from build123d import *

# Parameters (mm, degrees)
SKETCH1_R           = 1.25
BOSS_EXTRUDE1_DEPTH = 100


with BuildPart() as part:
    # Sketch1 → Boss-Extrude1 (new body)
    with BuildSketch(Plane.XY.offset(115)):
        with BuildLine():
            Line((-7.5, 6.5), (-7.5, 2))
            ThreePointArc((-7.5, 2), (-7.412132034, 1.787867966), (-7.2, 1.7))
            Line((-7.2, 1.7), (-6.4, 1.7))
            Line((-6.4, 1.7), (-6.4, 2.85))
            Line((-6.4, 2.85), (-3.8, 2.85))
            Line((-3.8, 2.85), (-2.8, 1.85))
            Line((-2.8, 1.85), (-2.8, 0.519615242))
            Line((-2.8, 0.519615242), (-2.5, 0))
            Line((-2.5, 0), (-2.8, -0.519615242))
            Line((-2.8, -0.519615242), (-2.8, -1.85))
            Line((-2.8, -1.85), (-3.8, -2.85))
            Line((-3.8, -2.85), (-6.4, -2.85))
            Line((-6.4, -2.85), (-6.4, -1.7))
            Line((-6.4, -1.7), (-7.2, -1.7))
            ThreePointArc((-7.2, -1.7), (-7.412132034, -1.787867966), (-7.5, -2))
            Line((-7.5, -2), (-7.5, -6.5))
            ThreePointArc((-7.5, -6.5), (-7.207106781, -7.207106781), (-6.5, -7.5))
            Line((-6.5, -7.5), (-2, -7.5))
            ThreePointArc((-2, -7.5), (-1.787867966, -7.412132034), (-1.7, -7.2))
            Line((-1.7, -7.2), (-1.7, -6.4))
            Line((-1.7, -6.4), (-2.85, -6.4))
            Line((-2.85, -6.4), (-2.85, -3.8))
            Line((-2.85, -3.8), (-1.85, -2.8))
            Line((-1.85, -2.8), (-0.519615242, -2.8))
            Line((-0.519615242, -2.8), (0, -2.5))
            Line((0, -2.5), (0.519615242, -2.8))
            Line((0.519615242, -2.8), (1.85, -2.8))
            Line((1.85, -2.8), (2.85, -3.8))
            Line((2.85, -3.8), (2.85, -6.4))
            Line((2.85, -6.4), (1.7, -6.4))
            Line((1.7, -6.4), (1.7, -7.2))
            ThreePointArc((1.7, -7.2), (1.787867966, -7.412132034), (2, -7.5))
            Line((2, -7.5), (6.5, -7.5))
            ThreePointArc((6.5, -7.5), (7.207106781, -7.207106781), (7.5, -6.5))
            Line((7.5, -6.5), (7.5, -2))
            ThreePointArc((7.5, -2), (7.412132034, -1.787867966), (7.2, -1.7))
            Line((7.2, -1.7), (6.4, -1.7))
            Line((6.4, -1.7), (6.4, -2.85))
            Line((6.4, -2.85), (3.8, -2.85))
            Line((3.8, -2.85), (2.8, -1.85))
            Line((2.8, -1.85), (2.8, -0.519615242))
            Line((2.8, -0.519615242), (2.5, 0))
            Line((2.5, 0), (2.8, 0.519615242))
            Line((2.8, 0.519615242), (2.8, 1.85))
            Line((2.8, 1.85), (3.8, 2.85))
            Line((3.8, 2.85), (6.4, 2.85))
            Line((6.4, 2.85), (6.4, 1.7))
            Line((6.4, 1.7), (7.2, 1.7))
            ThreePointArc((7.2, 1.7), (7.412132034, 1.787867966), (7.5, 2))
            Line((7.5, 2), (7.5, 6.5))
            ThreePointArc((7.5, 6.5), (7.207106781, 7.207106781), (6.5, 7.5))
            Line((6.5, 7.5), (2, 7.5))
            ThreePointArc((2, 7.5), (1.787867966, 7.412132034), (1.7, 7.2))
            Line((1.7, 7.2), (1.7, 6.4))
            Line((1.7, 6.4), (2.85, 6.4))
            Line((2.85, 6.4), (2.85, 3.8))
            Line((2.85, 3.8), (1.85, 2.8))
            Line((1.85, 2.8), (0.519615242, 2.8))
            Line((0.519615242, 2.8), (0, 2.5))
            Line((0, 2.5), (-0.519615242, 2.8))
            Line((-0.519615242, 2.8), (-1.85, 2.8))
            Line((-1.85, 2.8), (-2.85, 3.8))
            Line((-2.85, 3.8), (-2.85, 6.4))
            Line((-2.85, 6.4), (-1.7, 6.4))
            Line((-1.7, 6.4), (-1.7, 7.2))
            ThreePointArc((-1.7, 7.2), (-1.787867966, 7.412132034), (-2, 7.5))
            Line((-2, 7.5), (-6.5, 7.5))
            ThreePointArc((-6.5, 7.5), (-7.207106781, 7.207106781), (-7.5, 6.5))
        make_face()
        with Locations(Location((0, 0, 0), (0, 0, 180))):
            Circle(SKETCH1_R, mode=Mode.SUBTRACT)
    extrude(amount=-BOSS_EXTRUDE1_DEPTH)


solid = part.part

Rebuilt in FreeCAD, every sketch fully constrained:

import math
import FreeCAD as App
import Part
import Sketcher
from FreeCAD import Vector
Q = App.Units.Quantity

doc = App.newDocument("Part")
body = doc.addObject("PartDesign::Body", "Body")

# Sketch on XY plane
sketch1 = body.newObject("Sketcher::SketchObject", "Sketch")
sketch1.AttachmentSupport = (doc.getObject("XY_Plane"), [""])
sketch1.MapMode = "FlatFace"
sketch1.AttachmentOffset = App.Placement(Vector(0, 0, 115), App.Rotation())
sketch1.addGeometry(Part.LineSegment(Vector(-7.5, 6.5, 0), Vector(-7.5, 2, 0)), False)
sketch1.addGeometry(Part.ArcOfCircle(Part.Circle(Vector(-7.2, 2, 0), Vector(0, 0, 1), 0.3), math.radians(-180), math.radians(-90)), False)
sketch1.addGeometry(Part.LineSegment(Vector(-7.2, 1.7, 0), Vector(-6.4, 1.7, 0)), False)
sketch1.addGeometry(Part.LineSegment(Vector(-6.4, 1.7, 0), Vector(-6.4, 2.85, 0)), False)
sketch1.addGeometry(Part.LineSegment(Vector(-6.4, 2.85, 0), Vector(-3.8, 2.85, 0)), False)
sketch1.addGeometry(Part.LineSegment(Vector(-3.8, 2.85, 0), Vector(-2.8, 1.85, 0)), False)
sketch1.addGeometry(Part.LineSegment(Vector(-2.8, 1.85, 0), Vector(-2.8, 0.52, 0)), False)
sketch1.addGeometry(Part.LineSegment(Vector(-2.8, 0.52, 0), Vector(-2.5, 0, 0)), False)
sketch1.addGeometry(Part.LineSegment(Vector(-2.5, 0, 0), Vector(-2.8, -0.52, 0)), False)
sketch1.addGeometry(Part.LineSegment(Vector(-2.8, -0.52, 0), Vector(-2.8, -1.85, 0)), False)
sketch1.addGeometry(Part.LineSegment(Vector(-2.8, -1.85, 0), Vector(-3.8, -2.85, 0)), False)
sketch1.addGeometry(Part.LineSegment(Vector(-3.8, -2.85, 0), Vector(-6.4, -2.85, 0)), False)
sketch1.addGeometry(Part.LineSegment(Vector(-6.4, -2.85, 0), Vector(-6.4, -1.7, 0)), False)
sketch1.addGeometry(Part.LineSegment(Vector(-6.4, -1.7, 0), Vector(-7.2, -1.7, 0)), False)
sketch1.addGeometry(Part.ArcOfCircle(Part.Circle(Vector(-7.2, -2, 0), Vector(0, 0, 1), 0.3), math.radians(90), math.radians(180)), False)
sketch1.addGeometry(Part.LineSegment(Vector(-7.5, -2, 0), Vector(-7.5, -6.5, 0)), False)
sketch1.addGeometry(Part.ArcOfCircle(Part.Circle(Vector(-6.5, -6.5, 0), Vector(0, 0, 1), 1), math.radians(-180), math.radians(-90)), False)
sketch1.addGeometry(Part.LineSegment(Vector(-6.5, -7.5, 0), Vector(-2, -7.5, 0)), False)
sketch1.addGeometry(Part.ArcOfCircle(Part.Circle(Vector(-2, -7.2, 0), Vector(0, 0, 1), 0.3), math.radians(-90), math.radians(0)), False)
sketch1.addGeometry(Part.LineSegment(Vector(-1.7, -7.2, 0), Vector(-1.7, -6.4, 0)), False)
sketch1.addGeometry(Part.LineSegment(Vector(-1.7, -6.4, 0), Vector(-2.85, -6.4, 0)), False)
sketch1.addGeometry(Part.LineSegment(Vector(-2.85, -6.4, 0), Vector(-2.85, -3.8, 0)), False)
sketch1.addGeometry(Part.LineSegment(Vector(-2.85, -3.8, 0), Vector(-1.85, -2.8, 0)), False)
sketch1.addGeometry(Part.LineSegment(Vector(-1.85, -2.8, 0), Vector(-0.52, -2.8, 0)), False)
sketch1.addGeometry(Part.LineSegment(Vector(-0.52, -2.8, 0), Vector(0, -2.5, 0)), False)
sketch1.addGeometry(Part.LineSegment(Vector(0, -2.5, 0), Vector(0.52, -2.8, 0)), False)
sketch1.addGeometry(Part.LineSegment(Vector(0.52, -2.8, 0), Vector(1.85, -2.8, 0)), False)
sketch1.addGeometry(Part.LineSegment(Vector(1.85, -2.8, 0), Vector(2.85, -3.8, 0)), False)
sketch1.addGeometry(Part.LineSegment(Vector(2.85, -3.8, 0), Vector(2.85, -6.4, 0)), False)
sketch1.addGeometry(Part.LineSegment(Vector(2.85, -6.4, 0), Vector(1.7, -6.4, 0)), False)
sketch1.addGeometry(Part.LineSegment(Vector(1.7, -6.4, 0), Vector(1.7, -7.2, 0)), False)
sketch1.addGeometry(Part.ArcOfCircle(Part.Circle(Vector(2, -7.2, 0), Vector(0, 0, 1), 0.3), math.radians(-180), math.radians(-90)), False)
sketch1.addGeometry(Part.LineSegment(Vector(2, -7.5, 0), Vector(6.5, -7.5, 0)), False)
sketch1.addGeometry(Part.ArcOfCircle(Part.Circle(Vector(6.5, -6.5, 0), Vector(0, 0, 1), 1), math.radians(-90), math.radians(0)), False)
sketch1.addGeometry(Part.LineSegment(Vector(7.5, -6.5, 0), Vector(7.5, -2, 0)), False)
sketch1.addGeometry(Part.ArcOfCircle(Part.Circle(Vector(7.2, -2, 0), Vector(0, 0, 1), 0.3), math.radians(0), math.radians(90)), False)
sketch1.addGeometry(Part.LineSegment(Vector(7.2, -1.7, 0), Vector(6.4, -1.7, 0)), False)
sketch1.addGeometry(Part.LineSegment(Vector(6.4, -1.7, 0), Vector(6.4, -2.85, 0)), False)
sketch1.addGeometry(Part.LineSegment(Vector(6.4, -2.85, 0), Vector(3.8, -2.85, 0)), False)
sketch1.addGeometry(Part.LineSegment(Vector(3.8, -2.85, 0), Vector(2.8, -1.85, 0)), False)
sketch1.addGeometry(Part.LineSegment(Vector(2.8, -1.85, 0), Vector(2.8, -0.52, 0)), False)
sketch1.addGeometry(Part.LineSegment(Vector(2.8, -0.52, 0), Vector(2.5, 0, 0)), False)
sketch1.addGeometry(Part.LineSegment(Vector(2.5, 0, 0), Vector(2.8, 0.52, 0)), False)
sketch1.addGeometry(Part.LineSegment(Vector(2.8, 0.52, 0), Vector(2.8, 1.85, 0)), False)
sketch1.addGeometry(Part.LineSegment(Vector(2.8, 1.85, 0), Vector(3.8, 2.85, 0)), False)
sketch1.addGeometry(Part.LineSegment(Vector(3.8, 2.85, 0), Vector(6.4, 2.85, 0)), False)
sketch1.addGeometry(Part.LineSegment(Vector(6.4, 2.85, 0), Vector(6.4, 1.7, 0)), False)
sketch1.addGeometry(Part.LineSegment(Vector(6.4, 1.7, 0), Vector(7.2, 1.7, 0)), False)
sketch1.addGeometry(Part.ArcOfCircle(Part.Circle(Vector(7.2, 2, 0), Vector(0, 0, 1), 0.3), math.radians(-90), math.radians(0)), False)
sketch1.addGeometry(Part.LineSegment(Vector(7.5, 2, 0), Vector(7.5, 6.5, 0)), False)
sketch1.addGeometry(Part.ArcOfCircle(Part.Circle(Vector(6.5, 6.5, 0), Vector(0, 0, 1), 1), math.radians(0), math.radians(90)), False)
sketch1.addGeometry(Part.LineSegment(Vector(6.5, 7.5, 0), Vector(2, 7.5, 0)), False)
sketch1.addGeometry(Part.ArcOfCircle(Part.Circle(Vector(2, 7.2, 0), Vector(0, 0, 1), 0.3), math.radians(90), math.radians(180)), False)
sketch1.addGeometry(Part.LineSegment(Vector(1.7, 7.2, 0), Vector(1.7, 6.4, 0)), False)
sketch1.addGeometry(Part.LineSegment(Vector(1.7, 6.4, 0), Vector(2.85, 6.4, 0)), False)
sketch1.addGeometry(Part.LineSegment(Vector(2.85, 6.4, 0), Vector(2.85, 3.8, 0)), False)
sketch1.addGeometry(Part.LineSegment(Vector(2.85, 3.8, 0), Vector(1.85, 2.8, 0)), False)
sketch1.addGeometry(Part.LineSegment(Vector(1.85, 2.8, 0), Vector(0.52, 2.8, 0)), False)
sketch1.addGeometry(Part.LineSegment(Vector(0.52, 2.8, 0), Vector(0, 2.5, 0)), False)
sketch1.addGeometry(Part.LineSegment(Vector(0, 2.5, 0), Vector(-0.52, 2.8, 0)), False)
sketch1.addGeometry(Part.LineSegment(Vector(-0.52, 2.8, 0), Vector(-1.85, 2.8, 0)), False)
sketch1.addGeometry(Part.LineSegment(Vector(-1.85, 2.8, 0), Vector(-2.85, 3.8, 0)), False)
sketch1.addGeometry(Part.LineSegment(Vector(-2.85, 3.8, 0), Vector(-2.85, 6.4, 0)), False)
sketch1.addGeometry(Part.LineSegment(Vector(-2.85, 6.4, 0), Vector(-1.7, 6.4, 0)), False)
sketch1.addGeometry(Part.LineSegment(Vector(-1.7, 6.4, 0), Vector(-1.7, 7.2, 0)), False)
sketch1.addGeometry(Part.ArcOfCircle(Part.Circle(Vector(-2, 7.2, 0), Vector(0, 0, 1), 0.3), math.radians(0), math.radians(90)), False)
sketch1.addGeometry(Part.LineSegment(Vector(-2, 7.5, 0), Vector(-6.5, 7.5, 0)), False)
sketch1.addGeometry(Part.ArcOfCircle(Part.Circle(Vector(-6.5, 6.5, 0), Vector(0, 0, 1), 1), math.radians(90), math.radians(180)), False)
sketch1.addGeometry(Part.Circle(Vector(0, 0, 0), Vector(0, 0, 1), 1.25), False)
sketch1.addConstraint(Sketcher.Constraint("Tangent", 0, 2, 1, 1))
sketch1.addConstraint(Sketcher.Constraint("Tangent", 1, 2, 2, 1))
sketch1.addConstraint(Sketcher.Constraint("Coincident", 2, 2, 3, 1))
sketch1.addConstraint(Sketcher.Constraint("Coincident", 3, 2, 4, 1))
sketch1.addConstraint(Sketcher.Constraint("Coincident", 4, 2, 5, 1))
sketch1.addConstraint(Sketcher.Constraint("Coincident", 5, 2, 6, 1))
sketch1.addConstraint(Sketcher.Constraint("Coincident", 6, 2, 7, 1))
sketch1.addConstraint(Sketcher.Constraint("Coincident", 7, 2, 8, 1))
sketch1.addConstraint(Sketcher.Constraint("Coincident", 8, 2, 9, 1))
sketch1.addConstraint(Sketcher.Constraint("Coincident", 9, 2, 10, 1))
sketch1.addConstraint(Sketcher.Constraint("Coincident", 10, 2, 11, 1))
sketch1.addConstraint(Sketcher.Constraint("Coincident", 11, 2, 12, 1))
sketch1.addConstraint(Sketcher.Constraint("Coincident", 12, 2, 13, 1))
sketch1.addConstraint(Sketcher.Constraint("Tangent", 13, 2, 14, 1))
sketch1.addConstraint(Sketcher.Constraint("Tangent", 14, 2, 15, 1))
sketch1.addConstraint(Sketcher.Constraint("Tangent", 15, 2, 16, 1))
sketch1.addConstraint(Sketcher.Constraint("Tangent", 16, 2, 17, 1))
sketch1.addConstraint(Sketcher.Constraint("Tangent", 17, 2, 18, 1))
sketch1.addConstraint(Sketcher.Constraint("Tangent", 18, 2, 19, 1))
sketch1.addConstraint(Sketcher.Constraint("Coincident", 19, 2, 20, 1))
sketch1.addConstraint(Sketcher.Constraint("Coincident", 20, 2, 21, 1))
sketch1.addConstraint(Sketcher.Constraint("Coincident", 21, 2, 22, 1))
sketch1.addConstraint(Sketcher.Constraint("Coincident", 22, 2, 23, 1))
sketch1.addConstraint(Sketcher.Constraint("Coincident", 23, 2, 24, 1))
sketch1.addConstraint(Sketcher.Constraint("Coincident", 24, 2, 25, 1))
sketch1.addConstraint(Sketcher.Constraint("Coincident", 25, 2, 26, 1))
sketch1.addConstraint(Sketcher.Constraint("Coincident", 26, 2, 27, 1))
sketch1.addConstraint(Sketcher.Constraint("Coincident", 27, 2, 28, 1))
sketch1.addConstraint(Sketcher.Constraint("Coincident", 28, 2, 29, 1))
sketch1.addConstraint(Sketcher.Constraint("Coincident", 29, 2, 30, 1))
sketch1.addConstraint(Sketcher.Constraint("Tangent", 30, 2, 31, 1))
sketch1.addConstraint(Sketcher.Constraint("Tangent", 31, 2, 32, 1))
sketch1.addConstraint(Sketcher.Constraint("Tangent", 32, 2, 33, 1))
sketch1.addConstraint(Sketcher.Constraint("Tangent", 33, 2, 34, 1))
sketch1.addConstraint(Sketcher.Constraint("Tangent", 34, 2, 35, 1))
sketch1.addConstraint(Sketcher.Constraint("Tangent", 35, 2, 36, 1))
sketch1.addConstraint(Sketcher.Constraint("Coincident", 36, 2, 37, 1))
sketch1.addConstraint(Sketcher.Constraint("Coincident", 37, 2, 38, 1))
sketch1.addConstraint(Sketcher.Constraint("Coincident", 38, 2, 39, 1))
sketch1.addConstraint(Sketcher.Constraint("Coincident", 39, 2, 40, 1))
sketch1.addConstraint(Sketcher.Constraint("Coincident", 40, 2, 41, 1))
sketch1.addConstraint(Sketcher.Constraint("Coincident", 41, 2, 42, 1))
sketch1.addConstraint(Sketcher.Constraint("Coincident", 42, 2, 43, 1))
sketch1.addConstraint(Sketcher.Constraint("Coincident", 43, 2, 44, 1))
sketch1.addConstraint(Sketcher.Constraint("Coincident", 44, 2, 45, 1))
sketch1.addConstraint(Sketcher.Constraint("Coincident", 45, 2, 46, 1))
sketch1.addConstraint(Sketcher.Constraint("Coincident", 46, 2, 47, 1))
sketch1.addConstraint(Sketcher.Constraint("Tangent", 47, 2, 48, 1))
sketch1.addConstraint(Sketcher.Constraint("Tangent", 48, 2, 49, 1))
sketch1.addConstraint(Sketcher.Constraint("Tangent", 49, 2, 50, 1))
sketch1.addConstraint(Sketcher.Constraint("Tangent", 50, 2, 51, 1))
sketch1.addConstraint(Sketcher.Constraint("Tangent", 51, 2, 52, 1))
sketch1.addConstraint(Sketcher.Constraint("Tangent", 52, 2, 53, 1))
sketch1.addConstraint(Sketcher.Constraint("Coincident", 53, 2, 54, 1))
sketch1.addConstraint(Sketcher.Constraint("Coincident", 54, 2, 55, 1))
sketch1.addConstraint(Sketcher.Constraint("Coincident", 55, 2, 56, 1))
sketch1.addConstraint(Sketcher.Constraint("Coincident", 56, 2, 57, 1))
sketch1.addConstraint(Sketcher.Constraint("Coincident", 57, 2, 58, 1))
sketch1.addConstraint(Sketcher.Constraint("Coincident", 58, 2, 59, 1))
sketch1.addConstraint(Sketcher.Constraint("Coincident", 59, 2, 60, 1))
sketch1.addConstraint(Sketcher.Constraint("Coincident", 60, 2, 61, 1))
sketch1.addConstraint(Sketcher.Constraint("Coincident", 61, 2, 62, 1))
sketch1.addConstraint(Sketcher.Constraint("Coincident", 62, 2, 63, 1))
sketch1.addConstraint(Sketcher.Constraint("Coincident", 63, 2, 64, 1))
sketch1.addConstraint(Sketcher.Constraint("Tangent", 64, 2, 65, 1))
sketch1.addConstraint(Sketcher.Constraint("Tangent", 65, 2, 66, 1))
sketch1.addConstraint(Sketcher.Constraint("Tangent", 66, 2, 67, 1))
sketch1.addConstraint(Sketcher.Constraint("Tangent", 67, 2, 0, 1))
sketch1.addConstraint(Sketcher.Constraint("Vertical", 0))
sketch1.addConstraint(Sketcher.Constraint("Horizontal", 2))
sketch1.addConstraint(Sketcher.Constraint("Vertical", 3))
sketch1.addConstraint(Sketcher.Constraint("Horizontal", 4))
sketch1.addConstraint(Sketcher.Constraint("Vertical", 6))
sketch1.addConstraint(Sketcher.Constraint("Vertical", 9))
sketch1.addConstraint(Sketcher.Constraint("Horizontal", 11))
sketch1.addConstraint(Sketcher.Constraint("Vertical", 12))
sketch1.addConstraint(Sketcher.Constraint("Horizontal", 13))
sketch1.addConstraint(Sketcher.Constraint("Vertical", 15))
sketch1.addConstraint(Sketcher.Constraint("Horizontal", 17))
sketch1.addConstraint(Sketcher.Constraint("Vertical", 19))
sketch1.addConstraint(Sketcher.Constraint("Horizontal", 20))
sketch1.addConstraint(Sketcher.Constraint("Vertical", 21))
sketch1.addConstraint(Sketcher.Constraint("Horizontal", 23))
sketch1.addConstraint(Sketcher.Constraint("Horizontal", 26))
sketch1.addConstraint(Sketcher.Constraint("Vertical", 28))
sketch1.addConstraint(Sketcher.Constraint("Horizontal", 29))
sketch1.addConstraint(Sketcher.Constraint("Vertical", 30))
sketch1.addConstraint(Sketcher.Constraint("Horizontal", 32))
sketch1.addConstraint(Sketcher.Constraint("Vertical", 34))
sketch1.addConstraint(Sketcher.Constraint("Horizontal", 36))
sketch1.addConstraint(Sketcher.Constraint("Vertical", 37))
sketch1.addConstraint(Sketcher.Constraint("Horizontal", 38))
sketch1.addConstraint(Sketcher.Constraint("Vertical", 40))
sketch1.addConstraint(Sketcher.Constraint("Vertical", 43))
sketch1.addConstraint(Sketcher.Constraint("Horizontal", 45))
sketch1.addConstraint(Sketcher.Constraint("Vertical", 46))
sketch1.addConstraint(Sketcher.Constraint("Horizontal", 47))
sketch1.addConstraint(Sketcher.Constraint("Vertical", 49))
sketch1.addConstraint(Sketcher.Constraint("Horizontal", 51))
sketch1.addConstraint(Sketcher.Constraint("Vertical", 53))
sketch1.addConstraint(Sketcher.Constraint("Horizontal", 54))
sketch1.addConstraint(Sketcher.Constraint("Vertical", 55))
sketch1.addConstraint(Sketcher.Constraint("Horizontal", 57))
sketch1.addConstraint(Sketcher.Constraint("Horizontal", 60))
sketch1.addConstraint(Sketcher.Constraint("Vertical", 62))
sketch1.addConstraint(Sketcher.Constraint("Horizontal", 63))
sketch1.addConstraint(Sketcher.Constraint("Vertical", 64))
sketch1.addConstraint(Sketcher.Constraint("Horizontal", 66))
sketch1.addConstraint(Sketcher.Constraint("Coincident", 68, 3, -1, 1))
sketch1.addConstraint(Sketcher.Constraint("Equal", 1, 14))
sketch1.addConstraint(Sketcher.Constraint("Equal", 14, 18))
sketch1.addConstraint(Sketcher.Constraint("Equal", 18, 31))
sketch1.addConstraint(Sketcher.Constraint("Equal", 16, 33))
sketch1.addConstraint(Sketcher.Constraint("Equal", 31, 35))
sketch1.addConstraint(Sketcher.Constraint("Equal", 35, 48))
sketch1.addConstraint(Sketcher.Constraint("Equal", 33, 50))
sketch1.addConstraint(Sketcher.Constraint("Equal", 48, 52))
sketch1.addConstraint(Sketcher.Constraint("Equal", 52, 65))
sketch1.addConstraint(Sketcher.Constraint("Equal", 50, 67))
sketch1.addConstraint(Sketcher.Constraint("Symmetric", 1, 3, 35, 3, -1, 1))
sketch1.addConstraint(Sketcher.Constraint("Symmetric", 14, 3, 48, 3, -1, 1))
sketch1.addConstraint(Sketcher.Constraint("Symmetric", 18, 3, 52, 3, -1, 1))
sketch1.addConstraint(Sketcher.Constraint("Symmetric", 31, 3, 65, 3, -1, 1))
sketch1.addConstraint(Sketcher.Constraint("Symmetric", 3, 2, 37, 2, -1, 1))
sketch1.addConstraint(Sketcher.Constraint("Symmetric", 5, 2, 39, 2, -1, 1))
sketch1.addConstraint(Sketcher.Constraint("Symmetric", 7, 2, 41, 2, -1, 1))
sketch1.addConstraint(Sketcher.Constraint("Symmetric", 8, 2, 42, 2, -1, 1))
sketch1.addConstraint(Sketcher.Constraint("Symmetric", 10, 2, 44, 2, -1, 1))
sketch1.addConstraint(Sketcher.Constraint("Symmetric", 20, 2, 54, 2, -1, 1))
sketch1.addConstraint(Sketcher.Constraint("Symmetric", 22, 2, 56, 2, -1, 1))
sketch1.addConstraint(Sketcher.Constraint("Symmetric", 24, 2, 58, 2, -1, 1))
sketch1.addConstraint(Sketcher.Constraint("Symmetric", 25, 2, 59, 2, -1, 1))
sketch1.addConstraint(Sketcher.Constraint("Symmetric", 27, 2, 61, 2, -1, 1))
sketch1.addConstraint(Sketcher.Constraint("Symmetric", 18, 3, 31, 3, -2))
sketch1.addConstraint(Sketcher.Constraint("Symmetric", 14, 3, 35, 3, -2))
sketch1.addConstraint(Sketcher.Constraint("Symmetric", 23, 2, 25, 2, -2))
sketch1.addConstraint(Sketcher.Constraint("Symmetric", 21, 2, 27, 2, -2))
sketch1.addConstraint(Sketcher.Constraint("Symmetric", 11, 2, 37, 2, -2))
sketch1.addConstraint(Sketcher.Constraint("Symmetric", 9, 2, 39, 2, -2))
sketch1.addConstraint(Sketcher.Constraint("PointOnObject", 7, 2, -1))
sketch1.addConstraint(Sketcher.Constraint("PointOnObject", 24, 2, -2))
sketch1.addConstraint(Sketcher.Constraint("Perpendicular", 5, 10))
sketch1.addConstraint(Sketcher.Constraint("Parallel", 10, 22))
sketch1.addConstraint(Sketcher.Constraint("Perpendicular", 7, 24))
sketch1.addConstraint(Sketcher.Constraint("Perpendicular", 8, 25))
sketch1.addConstraint(Sketcher.Constraint("Perpendicular", 22, 27))
sketch1.addConstraint(Sketcher.Constraint("Parallel", 27, 39))
sketch1.addConstraint(Sketcher.Constraint("Perpendicular", 24, 41))
sketch1.addConstraint(Sketcher.Constraint("Perpendicular", 39, 44))
sketch1.addConstraint(Sketcher.Constraint("Parallel", 44, 56))
sketch1.addConstraint(Sketcher.Constraint("Perpendicular", 41, 58))
sketch1.addConstraint(Sketcher.Constraint("Perpendicular", 56, 61))
sketch1.addConstraint(Sketcher.Constraint("Horizontal", 20, 2, 28, 2))
sketch1.addConstraint(Sketcher.Constraint("Horizontal", 54, 2, 62, 2))
sketch1.addConstraint(Sketcher.Constraint("Vertical", 4, 2, 10, 2))
sketch1.addConstraint(Sketcher.Constraint("Vertical", 37, 2, 45, 2))
sketch1.addConstraint(Sketcher.Constraint("Equal", 66, 0))
sketch1.addConstraint(Sketcher.Constraint("Equal", 63, 3))
sketch1.addConstraint(Sketcher.Constraint("Equal", 60, 6))
sketch1.addConstraint(Sketcher.Constraint("Equal", 47, 19))
sketch1.addConstraint(Sketcher.Constraint("Equal", 45, 21))
sketch1.addConstraint(Sketcher.Constraint("Equal", 10, 22))
sketch1.addConstraint(Sketcher.Constraint("Equal", 8, 24))
sketch1.addConstraint(Sketcher.Constraint("Radius", 16, 1.0))
sketch1.addConstraint(Sketcher.Constraint("Diameter", 68, 2.5))
sketch1.addConstraint(Sketcher.Constraint("Radius", 1, 0.3))
sketch1.addConstraint(Sketcher.Constraint("Angle", 7, Q("-60 deg")))
sketch1.addConstraint(Sketcher.Constraint("DistanceX", 2, 1, 2, 2, 0.8))
sketch1.addConstraint(Sketcher.Constraint("DistanceX", 4, 1, 4, 2, 2.6))
sketch1.addConstraint(Sketcher.Constraint("DistanceX", 17, 1, 17, 2, 4.5))
sketch1.addConstraint(Sketcher.Constraint("DistanceY", -1, 1, 1, 3, 2.0))
sketch1.addConstraint(Sketcher.Constraint("Distance", 7, 0.6))
sketch1.addConstraint(Sketcher.Constraint("DistanceX", 20, 2, 20, 1, 1.15))
sketch1.addConstraint(Sketcher.Constraint("DistanceX", 5, 2, -1, 1, 2.8))
pad1 = body.newObject("PartDesign::Pad", "Pad")
pad1.Profile = sketch1
pad1.Length = 100
pad1.Reversed = True

doc.recompute()
